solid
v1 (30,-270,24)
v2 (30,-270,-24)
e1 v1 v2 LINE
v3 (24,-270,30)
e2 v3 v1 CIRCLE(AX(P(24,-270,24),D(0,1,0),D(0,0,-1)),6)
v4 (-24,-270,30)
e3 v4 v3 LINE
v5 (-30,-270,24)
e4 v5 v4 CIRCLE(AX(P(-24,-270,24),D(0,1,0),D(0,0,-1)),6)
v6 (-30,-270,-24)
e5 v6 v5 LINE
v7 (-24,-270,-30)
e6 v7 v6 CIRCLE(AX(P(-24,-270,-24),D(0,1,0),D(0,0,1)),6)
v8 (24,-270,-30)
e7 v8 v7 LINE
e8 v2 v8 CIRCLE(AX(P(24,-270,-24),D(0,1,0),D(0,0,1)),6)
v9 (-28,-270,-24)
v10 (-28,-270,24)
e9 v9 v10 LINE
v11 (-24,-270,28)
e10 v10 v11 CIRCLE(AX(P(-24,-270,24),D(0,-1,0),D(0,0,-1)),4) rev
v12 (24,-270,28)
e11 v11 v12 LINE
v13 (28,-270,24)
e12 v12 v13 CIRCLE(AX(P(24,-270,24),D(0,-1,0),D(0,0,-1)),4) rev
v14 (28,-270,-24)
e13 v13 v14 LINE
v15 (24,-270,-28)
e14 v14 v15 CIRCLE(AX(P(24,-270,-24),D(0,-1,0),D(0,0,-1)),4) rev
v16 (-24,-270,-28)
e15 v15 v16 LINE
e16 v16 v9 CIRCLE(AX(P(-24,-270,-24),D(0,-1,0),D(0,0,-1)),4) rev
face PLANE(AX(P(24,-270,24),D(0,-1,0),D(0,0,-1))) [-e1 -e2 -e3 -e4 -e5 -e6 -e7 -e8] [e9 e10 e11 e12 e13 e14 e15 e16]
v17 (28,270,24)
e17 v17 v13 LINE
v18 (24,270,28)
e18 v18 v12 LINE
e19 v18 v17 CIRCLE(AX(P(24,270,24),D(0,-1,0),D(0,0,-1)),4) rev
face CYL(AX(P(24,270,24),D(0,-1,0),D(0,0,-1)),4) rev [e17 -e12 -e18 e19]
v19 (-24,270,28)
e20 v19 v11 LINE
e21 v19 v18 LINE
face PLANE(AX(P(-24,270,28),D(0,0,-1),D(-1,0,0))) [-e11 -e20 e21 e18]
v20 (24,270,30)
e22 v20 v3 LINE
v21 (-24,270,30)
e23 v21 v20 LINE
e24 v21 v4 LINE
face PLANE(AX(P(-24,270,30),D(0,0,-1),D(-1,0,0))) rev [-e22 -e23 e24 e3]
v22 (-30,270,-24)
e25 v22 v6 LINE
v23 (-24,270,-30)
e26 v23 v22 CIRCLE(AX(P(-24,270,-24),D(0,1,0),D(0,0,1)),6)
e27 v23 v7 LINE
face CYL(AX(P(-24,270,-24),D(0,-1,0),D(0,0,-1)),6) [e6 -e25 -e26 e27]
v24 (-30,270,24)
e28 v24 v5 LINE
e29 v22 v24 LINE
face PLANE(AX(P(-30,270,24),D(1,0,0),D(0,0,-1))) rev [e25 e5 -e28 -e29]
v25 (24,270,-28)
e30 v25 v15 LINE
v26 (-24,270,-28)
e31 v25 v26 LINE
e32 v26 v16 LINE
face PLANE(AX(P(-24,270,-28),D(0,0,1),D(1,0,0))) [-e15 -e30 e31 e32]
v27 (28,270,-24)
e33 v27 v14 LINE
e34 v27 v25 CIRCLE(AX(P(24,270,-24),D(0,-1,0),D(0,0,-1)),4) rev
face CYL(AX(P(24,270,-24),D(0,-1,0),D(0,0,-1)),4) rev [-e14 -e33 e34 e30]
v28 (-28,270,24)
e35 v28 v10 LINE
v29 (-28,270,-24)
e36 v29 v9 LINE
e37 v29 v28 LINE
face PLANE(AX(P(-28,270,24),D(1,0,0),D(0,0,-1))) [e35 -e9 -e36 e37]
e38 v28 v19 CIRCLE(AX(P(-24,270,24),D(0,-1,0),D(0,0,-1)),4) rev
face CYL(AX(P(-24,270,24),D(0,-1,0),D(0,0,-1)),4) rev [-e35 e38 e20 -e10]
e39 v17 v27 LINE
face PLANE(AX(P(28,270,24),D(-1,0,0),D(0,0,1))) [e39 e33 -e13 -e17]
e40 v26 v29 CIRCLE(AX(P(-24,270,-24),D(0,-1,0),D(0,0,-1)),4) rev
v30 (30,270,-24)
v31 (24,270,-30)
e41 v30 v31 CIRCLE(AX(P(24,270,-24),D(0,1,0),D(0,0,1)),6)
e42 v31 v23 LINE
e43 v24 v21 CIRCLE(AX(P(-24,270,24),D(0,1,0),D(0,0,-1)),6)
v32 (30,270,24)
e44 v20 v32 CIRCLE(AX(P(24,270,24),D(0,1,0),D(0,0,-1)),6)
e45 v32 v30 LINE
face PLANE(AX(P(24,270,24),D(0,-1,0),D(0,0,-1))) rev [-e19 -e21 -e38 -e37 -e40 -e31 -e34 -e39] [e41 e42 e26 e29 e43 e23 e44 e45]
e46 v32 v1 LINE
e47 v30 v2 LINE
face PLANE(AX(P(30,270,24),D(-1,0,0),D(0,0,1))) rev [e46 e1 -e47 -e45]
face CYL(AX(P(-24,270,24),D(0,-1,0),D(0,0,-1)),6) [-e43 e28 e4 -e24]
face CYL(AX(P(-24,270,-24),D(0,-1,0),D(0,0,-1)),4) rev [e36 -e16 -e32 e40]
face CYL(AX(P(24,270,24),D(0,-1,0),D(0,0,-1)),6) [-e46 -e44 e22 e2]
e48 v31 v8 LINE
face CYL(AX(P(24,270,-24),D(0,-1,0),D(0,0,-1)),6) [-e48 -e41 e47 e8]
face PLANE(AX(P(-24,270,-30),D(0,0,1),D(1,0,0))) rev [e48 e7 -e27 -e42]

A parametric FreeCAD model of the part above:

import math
import FreeCAD as App
import Part
import Sketcher

V = App.Vector


def faces_at(feature, points):
    """Names of the faces that lie closest to the given points."""
    faces = feature.Shape.Faces
    near = lambda p: min(range(len(faces)), key=lambda i: faces[i].distToShape(Part.Vertex(*p))[0])
    return sorted({f"Face{near(p) + 1}" for p in points})

doc = App.newDocument("Part")
body = doc.addObject("PartDesign::Body", "Body")

sketch1 = doc.addObject("Sketcher::SketchObject", "Sketch")
body.addObject(sketch1)
sketch1.AttachmentSupport = (doc.XZ_Plane, [""])
sketch1.MapMode = "FlatFace"
sketch1.addGeometry([
    Part.LineSegment(V(-24, 30, 0), V(24, 30, 0)),
    Part.ArcOfCircle(Part.Circle(V(24, 24, 0), V(0, 0, 1), 6), math.radians(0), math.radians(90)),
    Part.LineSegment(V(30, 24, 0), V(30, -24, 0)),
    Part.ArcOfCircle(Part.Circle(V(24, -24, 0), V(0, 0, 1), 6), math.radians(-90), math.radians(0)),
    Part.LineSegment(V(24, -30, 0), V(-24, -30, 0)),
    Part.ArcOfCircle(Part.Circle(V(-24, -24, 0), V(0, 0, 1), 6), math.radians(180), math.radians(270)),
    Part.LineSegment(V(-30, -24, 0), V(-30, 24, 0)),
    Part.ArcOfCircle(Part.Circle(V(-24, 24, 0), V(0, 0, 1), 6), math.radians(90), math.radians(180)),
], False)
sketch1.addConstraint([
    Sketcher.Constraint("Tangent", 0, 2, 1, 2),
    Sketcher.Constraint("Tangent", 1, 1, 2, 1),
    Sketcher.Constraint("Tangent", 2, 2, 3, 2),
    Sketcher.Constraint("Tangent", 3, 1, 4, 1),
    Sketcher.Constraint("Tangent", 4, 2, 5, 2),
    Sketcher.Constraint("Tangent", 5, 1, 6, 1),
    Sketcher.Constraint("Tangent", 6, 2, 7, 2),
    Sketcher.Constraint("Tangent", 7, 1, 0, 1),
    Sketcher.Constraint("Horizontal", 0),
    Sketcher.Constraint("Vertical", 2),
    Sketcher.Constraint("Horizontal", 4),
    Sketcher.Constraint("Vertical", 6),
    Sketcher.Constraint("Equal", 1, 3),
    Sketcher.Constraint("Equal", 3, 5),
    Sketcher.Constraint("Equal", 5, 7),
    Sketcher.Constraint("Symmetric", 1, 3, 5, 3, -1, 1),
    Sketcher.Constraint("Equal", 4, 2),
    Sketcher.Constraint("Radius", 1, 6.0),
    Sketcher.Constraint("DistanceX", 0, 1, 0, 2, 48.0),
])
pad1 = doc.addObject("PartDesign::Pad", "Pad")
body.addObject(pad1)
pad1.Profile = sketch1
pad1.Length = 540
pad1.Midplane = True
doc.recompute()

thickness = doc.addObject("PartDesign::Thickness", "Thickness")
body.addObject(thickness)
thickness.Base = (pad1, faces_at(pad1, [(0, 270, 0), (0, -270, 0)]))
thickness.Value = 2
thickness.Reversed = True
thickness.Join = "Intersection"

doc.recompute()
